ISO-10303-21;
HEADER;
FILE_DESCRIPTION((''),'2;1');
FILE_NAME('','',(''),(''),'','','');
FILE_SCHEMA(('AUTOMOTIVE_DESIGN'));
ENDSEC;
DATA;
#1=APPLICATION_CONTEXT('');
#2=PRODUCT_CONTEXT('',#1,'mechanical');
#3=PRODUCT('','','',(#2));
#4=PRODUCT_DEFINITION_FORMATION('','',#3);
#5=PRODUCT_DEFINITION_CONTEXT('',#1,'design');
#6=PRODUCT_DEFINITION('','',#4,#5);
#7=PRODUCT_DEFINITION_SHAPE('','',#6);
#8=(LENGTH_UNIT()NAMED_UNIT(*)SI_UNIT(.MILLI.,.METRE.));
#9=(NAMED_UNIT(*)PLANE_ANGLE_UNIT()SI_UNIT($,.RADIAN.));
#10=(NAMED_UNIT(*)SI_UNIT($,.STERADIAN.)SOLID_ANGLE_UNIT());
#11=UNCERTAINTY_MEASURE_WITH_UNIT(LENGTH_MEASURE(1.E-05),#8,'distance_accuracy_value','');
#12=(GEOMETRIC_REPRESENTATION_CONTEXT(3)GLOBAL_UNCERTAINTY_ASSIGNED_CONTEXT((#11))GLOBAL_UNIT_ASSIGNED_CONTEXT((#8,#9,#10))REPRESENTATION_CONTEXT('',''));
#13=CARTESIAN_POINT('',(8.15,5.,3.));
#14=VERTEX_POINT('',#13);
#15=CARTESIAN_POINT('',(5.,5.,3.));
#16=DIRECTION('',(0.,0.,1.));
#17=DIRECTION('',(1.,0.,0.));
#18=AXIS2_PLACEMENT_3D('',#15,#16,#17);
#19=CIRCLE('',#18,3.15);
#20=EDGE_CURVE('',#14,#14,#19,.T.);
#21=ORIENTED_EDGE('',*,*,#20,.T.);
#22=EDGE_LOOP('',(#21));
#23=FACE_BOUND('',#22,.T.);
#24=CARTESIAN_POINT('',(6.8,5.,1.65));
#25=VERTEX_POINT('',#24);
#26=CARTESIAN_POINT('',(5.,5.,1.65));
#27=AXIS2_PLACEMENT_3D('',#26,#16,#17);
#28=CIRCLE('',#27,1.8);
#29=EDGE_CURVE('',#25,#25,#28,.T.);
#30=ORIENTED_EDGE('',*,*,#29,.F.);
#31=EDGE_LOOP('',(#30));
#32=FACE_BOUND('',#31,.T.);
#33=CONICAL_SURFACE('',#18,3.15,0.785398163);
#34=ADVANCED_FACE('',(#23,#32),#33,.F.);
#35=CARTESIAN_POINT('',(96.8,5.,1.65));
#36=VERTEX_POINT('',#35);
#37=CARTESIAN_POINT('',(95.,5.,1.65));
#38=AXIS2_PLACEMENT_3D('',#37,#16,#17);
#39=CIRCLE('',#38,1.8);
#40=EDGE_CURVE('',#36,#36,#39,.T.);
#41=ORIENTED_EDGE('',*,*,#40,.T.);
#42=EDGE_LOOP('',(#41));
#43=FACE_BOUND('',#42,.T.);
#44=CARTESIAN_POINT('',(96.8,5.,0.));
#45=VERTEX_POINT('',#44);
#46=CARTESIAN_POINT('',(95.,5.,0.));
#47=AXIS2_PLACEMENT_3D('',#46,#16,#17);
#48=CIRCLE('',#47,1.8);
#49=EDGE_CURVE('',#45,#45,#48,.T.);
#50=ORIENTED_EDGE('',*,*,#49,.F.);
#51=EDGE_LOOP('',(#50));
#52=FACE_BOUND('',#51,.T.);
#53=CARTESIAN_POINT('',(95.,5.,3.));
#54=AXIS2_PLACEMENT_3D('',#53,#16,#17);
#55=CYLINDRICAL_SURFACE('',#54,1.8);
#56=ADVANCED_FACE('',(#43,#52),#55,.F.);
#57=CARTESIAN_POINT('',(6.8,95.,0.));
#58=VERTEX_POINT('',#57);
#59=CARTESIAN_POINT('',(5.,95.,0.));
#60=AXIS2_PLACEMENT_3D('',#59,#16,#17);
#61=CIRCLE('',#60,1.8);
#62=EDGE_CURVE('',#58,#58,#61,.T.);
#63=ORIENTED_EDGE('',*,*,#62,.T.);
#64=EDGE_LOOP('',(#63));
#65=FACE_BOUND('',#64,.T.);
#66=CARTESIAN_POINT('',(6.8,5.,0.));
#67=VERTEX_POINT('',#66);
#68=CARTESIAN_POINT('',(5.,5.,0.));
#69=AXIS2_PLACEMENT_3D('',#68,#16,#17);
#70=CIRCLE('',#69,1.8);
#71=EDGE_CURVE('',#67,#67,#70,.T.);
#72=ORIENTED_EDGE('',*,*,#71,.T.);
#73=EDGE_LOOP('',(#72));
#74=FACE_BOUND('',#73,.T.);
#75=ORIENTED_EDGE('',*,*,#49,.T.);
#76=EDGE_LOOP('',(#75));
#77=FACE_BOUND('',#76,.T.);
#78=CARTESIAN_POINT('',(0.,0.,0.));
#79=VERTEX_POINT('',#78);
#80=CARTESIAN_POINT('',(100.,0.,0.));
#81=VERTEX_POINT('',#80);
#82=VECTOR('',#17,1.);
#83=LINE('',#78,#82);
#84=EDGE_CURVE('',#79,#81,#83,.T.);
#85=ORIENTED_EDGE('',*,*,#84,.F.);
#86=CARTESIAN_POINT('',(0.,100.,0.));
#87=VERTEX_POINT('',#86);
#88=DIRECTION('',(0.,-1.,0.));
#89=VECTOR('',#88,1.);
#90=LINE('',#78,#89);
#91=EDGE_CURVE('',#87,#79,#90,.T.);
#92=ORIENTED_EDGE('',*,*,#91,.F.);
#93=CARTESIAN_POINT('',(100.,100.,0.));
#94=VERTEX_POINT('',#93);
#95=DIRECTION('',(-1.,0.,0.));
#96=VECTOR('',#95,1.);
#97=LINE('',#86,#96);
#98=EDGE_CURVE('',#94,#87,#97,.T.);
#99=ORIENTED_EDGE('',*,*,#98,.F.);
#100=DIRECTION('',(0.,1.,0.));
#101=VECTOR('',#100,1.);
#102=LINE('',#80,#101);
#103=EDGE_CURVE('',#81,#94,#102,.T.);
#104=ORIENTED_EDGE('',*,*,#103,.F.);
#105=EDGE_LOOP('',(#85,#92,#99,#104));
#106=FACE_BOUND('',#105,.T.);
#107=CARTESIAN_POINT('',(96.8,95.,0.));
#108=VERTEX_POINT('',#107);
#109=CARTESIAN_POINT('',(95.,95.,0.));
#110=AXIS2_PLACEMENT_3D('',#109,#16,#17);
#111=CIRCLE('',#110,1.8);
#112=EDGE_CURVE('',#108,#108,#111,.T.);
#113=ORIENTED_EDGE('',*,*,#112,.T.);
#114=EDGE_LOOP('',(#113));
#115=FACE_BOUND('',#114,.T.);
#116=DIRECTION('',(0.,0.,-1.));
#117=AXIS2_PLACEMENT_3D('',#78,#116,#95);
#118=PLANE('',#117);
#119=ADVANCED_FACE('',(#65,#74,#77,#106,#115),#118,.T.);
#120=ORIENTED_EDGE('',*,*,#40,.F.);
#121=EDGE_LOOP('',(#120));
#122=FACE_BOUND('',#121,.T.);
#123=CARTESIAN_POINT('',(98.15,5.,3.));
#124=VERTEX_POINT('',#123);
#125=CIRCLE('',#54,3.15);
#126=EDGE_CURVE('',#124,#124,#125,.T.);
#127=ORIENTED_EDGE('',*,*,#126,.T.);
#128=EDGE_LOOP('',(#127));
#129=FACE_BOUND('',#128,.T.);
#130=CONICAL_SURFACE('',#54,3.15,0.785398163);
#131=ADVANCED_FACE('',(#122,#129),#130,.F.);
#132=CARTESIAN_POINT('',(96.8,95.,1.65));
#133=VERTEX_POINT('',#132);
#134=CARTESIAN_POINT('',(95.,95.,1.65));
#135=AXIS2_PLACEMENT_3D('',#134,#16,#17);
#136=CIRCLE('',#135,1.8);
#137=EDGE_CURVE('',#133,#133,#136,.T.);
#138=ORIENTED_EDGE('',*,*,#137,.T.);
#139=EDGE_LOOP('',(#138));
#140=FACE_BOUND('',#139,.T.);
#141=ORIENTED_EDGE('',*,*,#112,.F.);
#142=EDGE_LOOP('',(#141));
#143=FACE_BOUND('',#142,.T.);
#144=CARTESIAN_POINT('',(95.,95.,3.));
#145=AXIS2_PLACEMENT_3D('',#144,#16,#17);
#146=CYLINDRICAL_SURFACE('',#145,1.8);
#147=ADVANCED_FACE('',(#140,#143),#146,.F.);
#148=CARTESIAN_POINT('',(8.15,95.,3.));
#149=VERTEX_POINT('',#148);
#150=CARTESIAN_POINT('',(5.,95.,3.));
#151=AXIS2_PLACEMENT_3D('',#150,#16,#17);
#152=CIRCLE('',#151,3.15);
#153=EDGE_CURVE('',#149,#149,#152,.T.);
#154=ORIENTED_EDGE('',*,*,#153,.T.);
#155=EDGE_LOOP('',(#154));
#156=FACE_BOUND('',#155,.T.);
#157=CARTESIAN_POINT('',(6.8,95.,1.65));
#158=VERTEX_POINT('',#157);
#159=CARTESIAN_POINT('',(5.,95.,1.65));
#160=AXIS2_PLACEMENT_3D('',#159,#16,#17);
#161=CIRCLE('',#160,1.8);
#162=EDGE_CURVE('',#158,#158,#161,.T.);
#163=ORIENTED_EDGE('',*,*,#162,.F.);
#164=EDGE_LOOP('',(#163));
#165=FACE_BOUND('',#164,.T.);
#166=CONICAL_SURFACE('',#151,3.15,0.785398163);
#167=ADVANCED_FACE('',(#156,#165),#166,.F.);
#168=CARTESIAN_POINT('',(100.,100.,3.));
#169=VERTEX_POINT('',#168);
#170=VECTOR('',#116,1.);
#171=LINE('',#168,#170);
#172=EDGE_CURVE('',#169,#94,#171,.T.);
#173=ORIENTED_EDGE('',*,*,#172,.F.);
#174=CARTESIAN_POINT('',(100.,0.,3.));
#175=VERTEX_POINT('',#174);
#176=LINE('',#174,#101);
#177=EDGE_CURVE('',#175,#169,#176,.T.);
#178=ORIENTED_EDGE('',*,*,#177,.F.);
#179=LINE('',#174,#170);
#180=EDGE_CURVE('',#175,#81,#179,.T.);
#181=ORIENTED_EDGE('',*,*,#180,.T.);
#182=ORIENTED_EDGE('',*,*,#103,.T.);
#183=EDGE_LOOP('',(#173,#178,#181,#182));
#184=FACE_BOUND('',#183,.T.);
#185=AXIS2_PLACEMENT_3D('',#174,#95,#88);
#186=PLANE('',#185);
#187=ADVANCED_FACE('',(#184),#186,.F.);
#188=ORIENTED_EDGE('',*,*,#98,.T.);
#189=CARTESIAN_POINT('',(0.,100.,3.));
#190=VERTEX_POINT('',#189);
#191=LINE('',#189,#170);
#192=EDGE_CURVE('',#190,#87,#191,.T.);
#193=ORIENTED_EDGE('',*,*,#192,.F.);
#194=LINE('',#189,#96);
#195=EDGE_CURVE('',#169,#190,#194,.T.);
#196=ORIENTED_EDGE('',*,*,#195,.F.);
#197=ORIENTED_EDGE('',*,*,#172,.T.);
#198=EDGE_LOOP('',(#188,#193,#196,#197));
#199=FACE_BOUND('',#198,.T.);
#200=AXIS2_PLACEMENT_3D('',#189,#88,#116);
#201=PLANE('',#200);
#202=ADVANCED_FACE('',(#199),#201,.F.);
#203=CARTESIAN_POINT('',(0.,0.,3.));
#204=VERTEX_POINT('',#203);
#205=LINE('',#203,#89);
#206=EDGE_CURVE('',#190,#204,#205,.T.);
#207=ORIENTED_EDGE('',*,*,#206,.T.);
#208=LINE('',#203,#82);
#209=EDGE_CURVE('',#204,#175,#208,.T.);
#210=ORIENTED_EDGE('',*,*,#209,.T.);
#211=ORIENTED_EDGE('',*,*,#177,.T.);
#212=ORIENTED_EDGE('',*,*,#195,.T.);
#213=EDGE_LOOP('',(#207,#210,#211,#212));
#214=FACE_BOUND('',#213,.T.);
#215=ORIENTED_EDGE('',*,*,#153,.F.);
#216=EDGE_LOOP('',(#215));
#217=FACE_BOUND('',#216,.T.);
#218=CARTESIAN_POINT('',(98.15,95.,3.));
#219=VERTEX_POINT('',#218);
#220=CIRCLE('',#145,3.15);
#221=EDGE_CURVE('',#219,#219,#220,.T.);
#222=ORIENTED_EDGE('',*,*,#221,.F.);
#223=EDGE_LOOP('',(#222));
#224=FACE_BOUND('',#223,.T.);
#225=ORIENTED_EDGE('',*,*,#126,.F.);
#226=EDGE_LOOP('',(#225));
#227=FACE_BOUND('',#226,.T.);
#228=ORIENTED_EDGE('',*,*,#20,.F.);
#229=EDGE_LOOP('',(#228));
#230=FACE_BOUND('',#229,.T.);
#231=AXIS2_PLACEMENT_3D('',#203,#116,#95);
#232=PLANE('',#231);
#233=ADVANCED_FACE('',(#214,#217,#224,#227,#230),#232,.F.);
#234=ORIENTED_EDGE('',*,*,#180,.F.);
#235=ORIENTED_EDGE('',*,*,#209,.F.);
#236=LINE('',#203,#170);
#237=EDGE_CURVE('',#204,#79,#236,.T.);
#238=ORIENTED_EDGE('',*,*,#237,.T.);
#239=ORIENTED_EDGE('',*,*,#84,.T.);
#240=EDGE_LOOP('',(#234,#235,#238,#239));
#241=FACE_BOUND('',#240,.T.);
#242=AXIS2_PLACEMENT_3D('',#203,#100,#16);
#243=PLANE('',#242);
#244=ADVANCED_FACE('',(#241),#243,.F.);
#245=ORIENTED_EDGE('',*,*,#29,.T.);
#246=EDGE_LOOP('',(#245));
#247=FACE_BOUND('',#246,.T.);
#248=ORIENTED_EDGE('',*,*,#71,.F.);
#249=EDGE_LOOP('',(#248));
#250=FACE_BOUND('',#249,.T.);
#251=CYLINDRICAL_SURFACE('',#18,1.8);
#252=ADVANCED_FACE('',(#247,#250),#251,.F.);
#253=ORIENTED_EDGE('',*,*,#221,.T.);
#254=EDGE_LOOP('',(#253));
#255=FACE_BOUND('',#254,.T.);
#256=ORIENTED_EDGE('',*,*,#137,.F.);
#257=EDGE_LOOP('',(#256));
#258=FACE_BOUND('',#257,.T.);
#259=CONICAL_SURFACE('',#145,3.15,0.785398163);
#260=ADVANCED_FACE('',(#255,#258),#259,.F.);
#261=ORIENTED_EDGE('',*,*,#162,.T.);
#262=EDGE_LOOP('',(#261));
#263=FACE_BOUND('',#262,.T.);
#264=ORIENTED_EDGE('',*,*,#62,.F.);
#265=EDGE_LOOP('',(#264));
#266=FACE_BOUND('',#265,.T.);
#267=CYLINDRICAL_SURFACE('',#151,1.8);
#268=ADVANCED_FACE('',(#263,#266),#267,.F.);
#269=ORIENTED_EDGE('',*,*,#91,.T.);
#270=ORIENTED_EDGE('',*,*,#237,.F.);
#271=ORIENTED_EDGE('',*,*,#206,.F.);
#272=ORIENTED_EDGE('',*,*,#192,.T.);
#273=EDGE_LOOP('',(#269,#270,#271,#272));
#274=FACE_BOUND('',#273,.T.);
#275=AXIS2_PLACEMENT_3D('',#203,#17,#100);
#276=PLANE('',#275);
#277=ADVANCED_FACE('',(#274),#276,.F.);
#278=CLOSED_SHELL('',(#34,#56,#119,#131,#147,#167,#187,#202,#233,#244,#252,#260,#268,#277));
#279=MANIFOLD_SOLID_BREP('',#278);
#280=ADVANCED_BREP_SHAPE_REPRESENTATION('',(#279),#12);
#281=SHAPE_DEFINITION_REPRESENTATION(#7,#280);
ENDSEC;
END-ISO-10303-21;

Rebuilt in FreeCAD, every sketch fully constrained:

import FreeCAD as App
import Part
import Sketcher
Q = App.Units.Quantity


def add_polygon(sketch, points):
    """Adds a closed chain of lines whose ends are joined by coincident constraints."""
    first, n = sketch.GeometryCount, len(points)
    for a, b in zip(points, points[1:] + points[:1]):
        sketch.addGeometry(Part.LineSegment(App.Vector(*a, 0), App.Vector(*b, 0)), False)
    for i in range(n):
        sketch.addConstraint(Sketcher.Constraint("Coincident", first + i, 2, first + (i + 1) % n, 1))

doc = App.newDocument("Part")
body = doc.addObject("PartDesign::Body", "Body")

sketch1 = body.newObject("Sketcher::SketchObject", "Sketch")
sketch1.AttachmentSupport = (doc.getObject("XY_Plane"), [""])
sketch1.MapMode = "FlatFace"
add_polygon(sketch1, [(0, 100), (0, 0), (100, 0), (100, 100)])
sketch1.addConstraint([
    Sketcher.Constraint("Vertical", 0),
    Sketcher.Constraint("Horizontal", 1),
    Sketcher.Constraint("Vertical", 2),
    Sketcher.Constraint("Horizontal", 3),
    Sketcher.Constraint("Coincident", 0, 2, -1, 1),
    Sketcher.Constraint("Equal", 3, 0),
    Sketcher.Constraint("DistanceX", 1, 1, 1, 2, Q("100 mm")),
])
pad1 = body.newObject("PartDesign::Pad", "Pad")
pad1.Profile = sketch1
pad1.Length = 3

sketch2 = body.newObject("Sketcher::SketchObject", "Sketch001")
sketch2.AttachmentSupport = (doc.getObject("YZ_Plane"), [""])
sketch2.MapMode = "FlatFace"
sketch2.AttachmentOffset = App.Placement(App.Vector(0, 0, 5), App.Rotation())
add_polygon(sketch2, [(95, 0), (95, 3), (91.85, 3), (93.2, 1.65), (93.2, 0)])
sketch2.addGeometry(Part.LineSegment(App.Vector(95, 3, 0), App.Vector(95, 0, 0)), True)
sketch2.addConstraint([
    Sketcher.Constraint("Vertical", 0),
    Sketcher.Constraint("Horizontal", 1),
    Sketcher.Constraint("Vertical", 3),
    Sketcher.Constraint("Horizontal", 4),
    Sketcher.Constraint("Vertical", 5),
    Sketcher.Constraint("Coincident", 5, 1, 0, 2),
    Sketcher.Constraint("PointOnObject", 3, 2, -1),
    Sketcher.Constraint("PointOnObject", 5, 2, -1),
    Sketcher.Constraint("DistanceY", 0, 1, 0, 2, Q("3 mm")),
    Sketcher.Constraint("Angle", 2, Q("-45 deg")),
    Sketcher.Constraint("DistanceX", 4, 1, 4, 2, Q("1.8 mm")),
    Sketcher.Constraint("DistanceX", -1, 1, 0, 2, Q("95 mm")),
    Sketcher.Constraint("DistanceX", 1, 2, 1, 1, Q("3.15 mm")),
])
groove = body.newObject("PartDesign::Groove", "Groove")
groove.Profile = sketch2
groove.ReferenceAxis = (sketch2, ["Axis0"])
groove.Angle = 360
doc.recompute()

linearpattern = body.newObject("PartDesign::LinearPattern", "LinearPattern")
linearpattern.Originals = [groove]
linearpattern.Direction = (doc.getObject("X_Axis"), [""])
linearpattern.Mode = "offset"
linearpattern.Offset = 90
linearpattern.Occurrences = 2
body.Tip = linearpattern
doc.recompute()

datumline = body.newObject("PartDesign::Line", "DatumLine")
datumline.Placement = App.Placement(App.Vector(0, 0, 0), App.Rotation(App.Vector(0, 0, 1), App.Vector(0.707106781, -0.707106781, 0)))
linearpattern2 = body.newObject("PartDesign::LinearPattern", "LinearPattern001")
linearpattern2.Originals = [groove]
linearpattern2.Direction = (datumline, [""])
linearpattern2.Mode = "offset"
linearpattern2.Offset = 127.279221
linearpattern2.Occurrences = 2
body.Tip = linearpattern2
doc.recompute()

linearpattern3 = body.newObject("PartDesign::LinearPattern", "LinearPattern002")
linearpattern3.Originals = [groove]
linearpattern3.Direction = (doc.getObject("Y_Axis"), [""])
linearpattern3.Mode = "offset"
linearpattern3.Offset = 90
linearpattern3.Occurrences = 2
linearpattern3.Reversed = True
body.Tip = linearpattern3

doc.recompute()
